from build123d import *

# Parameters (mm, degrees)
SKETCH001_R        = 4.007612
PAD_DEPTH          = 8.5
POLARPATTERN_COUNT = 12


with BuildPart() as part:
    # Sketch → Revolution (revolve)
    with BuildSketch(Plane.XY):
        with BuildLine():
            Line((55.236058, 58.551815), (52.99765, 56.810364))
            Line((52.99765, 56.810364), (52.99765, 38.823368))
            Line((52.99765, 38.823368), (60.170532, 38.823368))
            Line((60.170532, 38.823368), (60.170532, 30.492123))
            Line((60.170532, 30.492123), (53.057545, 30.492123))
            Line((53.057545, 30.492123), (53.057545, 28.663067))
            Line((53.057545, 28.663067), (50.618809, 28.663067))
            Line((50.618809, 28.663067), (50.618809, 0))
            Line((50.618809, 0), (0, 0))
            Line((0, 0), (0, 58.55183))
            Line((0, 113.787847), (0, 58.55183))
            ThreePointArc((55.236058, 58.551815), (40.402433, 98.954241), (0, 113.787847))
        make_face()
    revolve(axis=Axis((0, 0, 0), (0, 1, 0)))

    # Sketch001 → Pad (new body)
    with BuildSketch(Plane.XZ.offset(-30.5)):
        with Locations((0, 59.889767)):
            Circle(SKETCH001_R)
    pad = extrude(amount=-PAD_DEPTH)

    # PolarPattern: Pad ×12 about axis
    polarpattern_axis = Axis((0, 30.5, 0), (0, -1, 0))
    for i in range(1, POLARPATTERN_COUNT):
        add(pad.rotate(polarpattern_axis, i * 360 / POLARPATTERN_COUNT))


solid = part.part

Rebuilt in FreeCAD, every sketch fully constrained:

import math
import FreeCAD as App
import Part
import Sketcher
from FreeCAD import Vector

doc = App.newDocument("Part")
params = doc.addObject("Spreadsheet::Sheet", "Params")
for row, (alias, value) in enumerate([
    ("revolution_angle", "360 deg"),
    ("pad1_length", "8.5 mm"),
], start=1):
    params.set(f"A{row}", alias)
    params.set(f"B{row}", "=" + value)
    params.setAlias(f"B{row}", alias)

body = doc.addObject("PartDesign::Body", "Body")

# Sketch on XY plane
sketch1 = body.newObject("Sketcher::SketchObject", "Sketch")
sketch1.AttachmentSupport = (doc.getObject("XY_Plane"), [""])
sketch1.MapMode = "FlatFace"
sketch1.addGeometry([
    Part.LineSegment(Vector(53, 56.8, 0), Vector(55.2, 58.6, 0)),  # 0
    Part.ArcOfCircle(Part.Circle(Vector(4.2, 62.7, 0), Vector(0, 0, 1), 51.2), math.radians(-5), math.radians(95)),  # 1
    Part.LineSegment(Vector(0, 113.8, 0), Vector(0, 0, 0)),  # 2
    Part.LineSegment(Vector(0, 0, 0), Vector(50.6, 0, 0)),  # 3
    Part.LineSegment(Vector(50.6, 0, 0), Vector(50.6, 28.7, 0)),  # 4
    Part.LineSegment(Vector(50.6, 28.7, 0), Vector(53.1, 28.7, 0)),  # 5
    Part.LineSegment(Vector(53.1, 28.7, 0), Vector(53.1, 30.5, 0)),  # 6
    Part.LineSegment(Vector(53.1, 30.5, 0), Vector(60.2, 30.5, 0)),  # 7
    Part.LineSegment(Vector(60.2, 30.5, 0), Vector(60.2, 38.8, 0)),  # 8
    Part.LineSegment(Vector(60.2, 38.8, 0), Vector(53, 38.8, 0)),  # 9
    Part.LineSegment(Vector(53, 38.8, 0), Vector(53, 56.8, 0)),  # 10
], False)
sketch1.addConstraint([
    Sketcher.Constraint("Coincident", 0, 2, 1, 1),
    Sketcher.Constraint("Coincident", 1, 2, 2, 1),
    Sketcher.Constraint("Coincident", 2, 2, 3, 1),
    Sketcher.Constraint("Coincident", 3, 2, 4, 1),
    Sketcher.Constraint("Coincident", 4, 2, 5, 1),
    Sketcher.Constraint("Coincident", 5, 2, 6, 1),
    Sketcher.Constraint("Coincident", 6, 2, 7, 1),
    Sketcher.Constraint("Coincident", 7, 2, 8, 1),
    Sketcher.Constraint("Coincident", 8, 2, 9, 1),
    Sketcher.Constraint("Coincident", 9, 2, 10, 1),
    Sketcher.Constraint("Coincident", 10, 2, 0, 1),
    Sketcher.Constraint("Vertical", 2),
    Sketcher.Constraint("Horizontal", 3),
    Sketcher.Constraint("Vertical", 4),
    Sketcher.Constraint("Horizontal", 5),
    Sketcher.Constraint("Vertical", 6),
    Sketcher.Constraint("Horizontal", 7),
    Sketcher.Constraint("Vertical", 8),
    Sketcher.Constraint("Horizontal", 9),
    Sketcher.Constraint("Vertical", 10),
    Sketcher.Constraint("Coincident", 2, 2, -1, 1),
    Sketcher.Constraint("Radius", 1, 51.228003),
    Sketcher.Constraint("DistanceX", 3, 1, 3, 2, 50.618809),
    Sketcher.Constraint("DistanceY", 5, 2, 8, 2, 10.160301),
    Sketcher.Constraint("Distance", 0, 2.83604),
    Sketcher.Constraint("DistanceX", 5, 1, 5, 2, 2.438736),
    Sketcher.Constraint("DistanceX", 7, 1, 7, 2, 7.112987),
    Sketcher.Constraint("DistanceX", 9, 2, 9, 1, 7.172882),
    Sketcher.Constraint("DistanceY", 2, 2, 2, 1, 113.787847),
    Sketcher.Constraint("DistanceY", 4, 1, 4, 2, 28.663067),
    Sketcher.Constraint("DistanceY", 6, 1, 6, 2, 1.829056),
    Sketcher.Constraint("DistanceY", 10, 1, 10, 2, 17.986996),
    Sketcher.Constraint("DistanceY", 0, 2, 1, 3, 4.178749),
])
revolution = body.newObject("PartDesign::Revolution", "Revolution")
revolution.Profile = sketch1
revolution.ReferenceAxis = (sketch1, ["V_Axis"])
revolution.setExpression("Angle", "Params.revolution_angle")

# Sketch on XZ plane
sketch2 = body.newObject("Sketcher::SketchObject", "Sketch001")
sketch2.AttachmentSupport = (doc.getObject("XZ_Plane"), [""])
sketch2.MapMode = "FlatFace"
sketch2.AttachmentOffset = App.Placement(Vector(0, 0, -30.5), App.Rotation())
sketch2.addGeometry(Part.Circle(Vector(0, 59.9, 0), Vector(0, 0, 1), 4), False)
sketch2.addConstraint([
    Sketcher.Constraint("PointOnObject", 0, 3, -2),
    Sketcher.Constraint("Diameter", 0, 8.015224),
    Sketcher.Constraint("DistanceY", -1, 1, 0, 3, 59.889767),
])
pad1 = body.newObject("PartDesign::Pad", "Pad")
pad1.Profile = sketch2
pad1.setExpression("Length", "Params.pad1_length")
pad1.Reversed = True
doc.recompute()

polarpattern = body.newObject("PartDesign::PolarPattern", "PolarPattern")
polarpattern.Originals = [pad1]
polarpattern.Axis = (doc.getObject("Y_Axis"), [""])
polarpattern.Angle = 360
polarpattern.Occurrences = 12
body.Tip = polarpattern

doc.recompute()
